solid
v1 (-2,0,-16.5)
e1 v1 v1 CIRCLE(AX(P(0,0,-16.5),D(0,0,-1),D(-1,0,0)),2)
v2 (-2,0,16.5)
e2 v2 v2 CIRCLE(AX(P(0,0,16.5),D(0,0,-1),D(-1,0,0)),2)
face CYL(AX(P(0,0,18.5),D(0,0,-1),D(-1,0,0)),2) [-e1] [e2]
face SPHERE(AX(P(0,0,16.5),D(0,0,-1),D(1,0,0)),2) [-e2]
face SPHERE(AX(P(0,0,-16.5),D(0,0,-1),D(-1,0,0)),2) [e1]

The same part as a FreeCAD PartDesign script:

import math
import FreeCAD as App
import Part
import Sketcher

V = App.Vector

doc = App.newDocument("Part")
body = doc.addObject("PartDesign::Body", "Body")

sketch1 = body.newObject("Sketcher::SketchObject", "Sketch")
sketch1.AttachmentSupport = (doc.getObject("XZ_Plane"), [""])
sketch1.MapMode = "FlatFace"
sketch1.addGeometry([
    Part.LineSegment(V(0, 18.5, 0), V(0, -18.5, 0)),
    Part.ArcOfCircle(Part.Circle(V(0, -16.5, 0), V(0, 0, 1), 2), math.radians(-90), math.radians(0)),
    Part.LineSegment(V(2, -16.5, 0), V(2, 16.5, 0)),
    Part.ArcOfCircle(Part.Circle(V(0, 16.5, 0), V(0, 0, 1), 2), math.radians(0), math.radians(90)),
], False)
sketch1.addConstraint([
    Sketcher.Constraint("Coincident", 0, 2, 1, 1),
    Sketcher.Constraint("Tangent", 1, 2, 2, 1),
    Sketcher.Constraint("Tangent", 2, 2, 3, 1),
    Sketcher.Constraint("Coincident", 3, 2, 0, 1),
    Sketcher.Constraint("Vertical", 0),
    Sketcher.Constraint("Vertical", 2),
    Sketcher.Constraint("Equal", 1, 3),
    Sketcher.Constraint("Symmetric", 1, 3, 3, 3, -1, 1),
    Sketcher.Constraint("PointOnObject", 0, 2, -2),
    Sketcher.Constraint("Radius", 1, 2.0),
    Sketcher.Constraint("DistanceY", 0, 2, 0, 1, 37.0),
])
revolution = body.newObject("PartDesign::Revolution", "Revolution")
revolution.Profile = sketch1
revolution.ReferenceAxis = (sketch1, ["V_Axis"])
revolution.Angle = 360

doc.recompute()
